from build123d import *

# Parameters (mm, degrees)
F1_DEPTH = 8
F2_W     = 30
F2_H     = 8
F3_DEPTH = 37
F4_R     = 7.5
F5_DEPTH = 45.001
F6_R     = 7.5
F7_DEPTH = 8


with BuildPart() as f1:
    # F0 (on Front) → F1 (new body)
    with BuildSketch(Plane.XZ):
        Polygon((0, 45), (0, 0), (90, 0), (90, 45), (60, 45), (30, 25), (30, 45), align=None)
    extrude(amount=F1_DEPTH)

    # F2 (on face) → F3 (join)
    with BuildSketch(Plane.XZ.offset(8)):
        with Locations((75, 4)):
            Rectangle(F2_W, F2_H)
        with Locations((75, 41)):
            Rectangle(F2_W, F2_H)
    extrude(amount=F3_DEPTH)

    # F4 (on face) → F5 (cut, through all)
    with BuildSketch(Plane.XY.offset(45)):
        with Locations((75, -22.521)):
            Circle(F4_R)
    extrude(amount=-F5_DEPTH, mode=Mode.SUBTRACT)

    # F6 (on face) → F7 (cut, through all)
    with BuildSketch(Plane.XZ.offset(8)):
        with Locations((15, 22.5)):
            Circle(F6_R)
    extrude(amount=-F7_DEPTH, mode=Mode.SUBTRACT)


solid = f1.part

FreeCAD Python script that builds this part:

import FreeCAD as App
import Part
import Sketcher

V = App.Vector

doc = App.newDocument("Part")
body = doc.addObject("PartDesign::Body", "Body")

sketch1 = body.newObject("Sketcher::SketchObject", "Sketch")
sketch1.AttachmentSupport = (doc.getObject("XZ_Plane"), [""])
sketch1.MapMode = "FlatFace"
sketch1.addGeometry(Part.LineSegment(V(0, 45, 0), V(0, 0, 0)), False)
sketch1.addGeometry(Part.LineSegment(V(0, 0, 0), V(90, 0, 0)), False)
sketch1.addGeometry(Part.LineSegment(V(90, 0, 0), V(90, 45, 0)), False)
sketch1.addGeometry(Part.LineSegment(V(90, 45, 0), V(60, 45, 0)), False)
sketch1.addGeometry(Part.LineSegment(V(60, 45, 0), V(30, 25, 0)), False)
sketch1.addGeometry(Part.LineSegment(V(30, 25, 0), V(30, 45, 0)), False)
sketch1.addGeometry(Part.LineSegment(V(30, 45, 0), V(0, 45, 0)), False)
sketch1.addConstraint(Sketcher.Constraint("Coincident", 0, 2, 1, 1))
sketch1.addConstraint(Sketcher.Constraint("Coincident", 1, 2, 2, 1))
sketch1.addConstraint(Sketcher.Constraint("Coincident", 2, 2, 3, 1))
sketch1.addConstraint(Sketcher.Constraint("Coincident", 3, 2, 4, 1))
sketch1.addConstraint(Sketcher.Constraint("Coincident", 4, 2, 5, 1))
sketch1.addConstraint(Sketcher.Constraint("Coincident", 5, 2, 6, 1))
sketch1.addConstraint(Sketcher.Constraint("Coincident", 6, 2, 0, 1))
sketch1.addConstraint(Sketcher.Constraint("Vertical", 0))
sketch1.addConstraint(Sketcher.Constraint("Horizontal", 1))
sketch1.addConstraint(Sketcher.Constraint("Vertical", 2))
sketch1.addConstraint(Sketcher.Constraint("Horizontal", 3))
sketch1.addConstraint(Sketcher.Constraint("Vertical", 5))
sketch1.addConstraint(Sketcher.Constraint("Horizontal", 6))
sketch1.addConstraint(Sketcher.Constraint("Coincident", 0, 2, -1, 1))
sketch1.addConstraint(Sketcher.Constraint("Horizontal", 3, 2, 5, 2))
sketch1.addConstraint(Sketcher.Constraint("Equal", 3, 6))
sketch1.addConstraint(Sketcher.Constraint("DistanceX", 1, 1, 1, 2, 90.0))
sketch1.addConstraint(Sketcher.Constraint("DistanceX", 3, 2, 3, 1, 30.0))
sketch1.addConstraint(Sketcher.Constraint("DistanceY", 0, 2, 0, 1, 45.0))
sketch1.addConstraint(Sketcher.Constraint("DistanceY", 5, 1, 5, 2, 20.0))
pad1 = body.newObject("PartDesign::Pad", "Pad")
pad1.Profile = sketch1
pad1.Length = 8

sketch2 = body.newObject("Sketcher::SketchObject", "Sketch001")
sketch2.AttachmentSupport = (doc.getObject("XZ_Plane"), [""])
sketch2.MapMode = "FlatFace"
sketch2.AttachmentOffset = App.Placement(V(0, 0, 8), App.Rotation())
sketch2.addGeometry(Part.LineSegment(V(60, 8, 0), V(60, 0, 0)), False)
sketch2.addGeometry(Part.LineSegment(V(60, 0, 0), V(90, 0, 0)), False)
sketch2.addGeometry(Part.LineSegment(V(90, 0, 0), V(90, 8, 0)), False)
sketch2.addGeometry(Part.LineSegment(V(90, 8, 0), V(60, 8, 0)), False)
sketch2.addGeometry(Part.LineSegment(V(60, 45, 0), V(60, 37, 0)), False)
sketch2.addGeometry(Part.LineSegment(V(60, 37, 0), V(90, 37, 0)), False)
sketch2.addGeometry(Part.LineSegment(V(90, 37, 0), V(90, 45, 0)), False)
sketch2.addGeometry(Part.LineSegment(V(90, 45, 0), V(60, 45, 0)), False)
sketch2.addConstraint(Sketcher.Constraint("Coincident", 0, 2, 1, 1))
sketch2.addConstraint(Sketcher.Constraint("Coincident", 1, 2, 2, 1))
sketch2.addConstraint(Sketcher.Constraint("Coincident", 2, 2, 3, 1))
sketch2.addConstraint(Sketcher.Constraint("Coincident", 3, 2, 0, 1))
sketch2.addConstraint(Sketcher.Constraint("Coincident", 4, 2, 5, 1))
sketch2.addConstraint(Sketcher.Constraint("Coincident", 5, 2, 6, 1))
sketch2.addConstraint(Sketcher.Constraint("Coincident", 6, 2, 7, 1))
sketch2.addConstraint(Sketcher.Constraint("Coincident", 7, 2, 4, 1))
sketch2.addConstraint(Sketcher.Constraint("Vertical", 0))
sketch2.addConstraint(Sketcher.Constraint("Horizontal", 1))
sketch2.addConstraint(Sketcher.Constraint("Vertical", 2))
sketch2.addConstraint(Sketcher.Constraint("Horizontal", 3))
sketch2.addConstraint(Sketcher.Constraint("Vertical", 4))
sketch2.addConstraint(Sketcher.Constraint("Horizontal", 5))
sketch2.addConstraint(Sketcher.Constraint("Vertical", 6))
sketch2.addConstraint(Sketcher.Constraint("Horizontal", 7))
sketch2.addConstraint(Sketcher.Constraint("PointOnObject", 0, 2, -1))
sketch2.addConstraint(Sketcher.Constraint("Vertical", 3, 2, 4, 2))
sketch2.addConstraint(Sketcher.Constraint("Vertical", 2, 2, 5, 2))
sketch2.addConstraint(Sketcher.Constraint("Equal", 2, 4))
sketch2.addConstraint(Sketcher.Constraint("DistanceX", 1, 1, 1, 2, 30.0))
sketch2.addConstraint(Sketcher.Constraint("DistanceY", 0, 2, 0, 1, 8.0))
sketch2.addConstraint(Sketcher.Constraint("DistanceX", -1, 1, 0, 2, 60.0))
sketch2.addConstraint(Sketcher.Constraint("DistanceY", -1, 1, 4, 2, 37.0))
pad2 = body.newObject("PartDesign::Pad", "Pad001")
pad2.Profile = sketch2
pad2.Length = 37

sketch3 = body.newObject("Sketcher::SketchObject", "Sketch002")
sketch3.AttachmentSupport = (doc.getObject("XY_Plane"), [""])
sketch3.MapMode = "FlatFace"
sketch3.AttachmentOffset = App.Placement(V(0, 0, 45), App.Rotation())
sketch3.addGeometry(Part.Circle(V(75, -23, 0), V(0, 0, 1), 8), False)
sketch3.addConstraint(Sketcher.Constraint("Diameter", 0, 15.0))
sketch3.addConstraint(Sketcher.Constraint("DistanceX", -1, 1, 0, 3, 75.0))
sketch3.addConstraint(Sketcher.Constraint("DistanceY", 0, 3, -1, 1, 22.521))
pocket1 = body.newObject("PartDesign::Pocket", "Pocket")
pocket1.Profile = sketch3
pocket1.Type = "ThroughAll"

sketch4 = body.newObject("Sketcher::SketchObject", "Sketch003")
sketch4.AttachmentSupport = (doc.getObject("XZ_Plane"), [""])
sketch4.MapMode = "FlatFace"
sketch4.AttachmentOffset = App.Placement(V(0, 0, 8), App.Rotation())
sketch4.addGeometry(Part.Circle(V(15, 22, 0), V(0, 0, 1), 8), False)
sketch4.addConstraint(Sketcher.Constraint("Diameter", 0, 15.0))
sketch4.addConstraint(Sketcher.Constraint("DistanceX", -1, 1, 0, 3, 15.0))
sketch4.addConstraint(Sketcher.Constraint("DistanceY", -1, 1, 0, 3, 22.5))
pocket2 = body.newObject("PartDesign::Pocket", "Pocket001")
pocket2.Profile = sketch4
pocket2.Type = "ThroughAll"

doc.recompute()
